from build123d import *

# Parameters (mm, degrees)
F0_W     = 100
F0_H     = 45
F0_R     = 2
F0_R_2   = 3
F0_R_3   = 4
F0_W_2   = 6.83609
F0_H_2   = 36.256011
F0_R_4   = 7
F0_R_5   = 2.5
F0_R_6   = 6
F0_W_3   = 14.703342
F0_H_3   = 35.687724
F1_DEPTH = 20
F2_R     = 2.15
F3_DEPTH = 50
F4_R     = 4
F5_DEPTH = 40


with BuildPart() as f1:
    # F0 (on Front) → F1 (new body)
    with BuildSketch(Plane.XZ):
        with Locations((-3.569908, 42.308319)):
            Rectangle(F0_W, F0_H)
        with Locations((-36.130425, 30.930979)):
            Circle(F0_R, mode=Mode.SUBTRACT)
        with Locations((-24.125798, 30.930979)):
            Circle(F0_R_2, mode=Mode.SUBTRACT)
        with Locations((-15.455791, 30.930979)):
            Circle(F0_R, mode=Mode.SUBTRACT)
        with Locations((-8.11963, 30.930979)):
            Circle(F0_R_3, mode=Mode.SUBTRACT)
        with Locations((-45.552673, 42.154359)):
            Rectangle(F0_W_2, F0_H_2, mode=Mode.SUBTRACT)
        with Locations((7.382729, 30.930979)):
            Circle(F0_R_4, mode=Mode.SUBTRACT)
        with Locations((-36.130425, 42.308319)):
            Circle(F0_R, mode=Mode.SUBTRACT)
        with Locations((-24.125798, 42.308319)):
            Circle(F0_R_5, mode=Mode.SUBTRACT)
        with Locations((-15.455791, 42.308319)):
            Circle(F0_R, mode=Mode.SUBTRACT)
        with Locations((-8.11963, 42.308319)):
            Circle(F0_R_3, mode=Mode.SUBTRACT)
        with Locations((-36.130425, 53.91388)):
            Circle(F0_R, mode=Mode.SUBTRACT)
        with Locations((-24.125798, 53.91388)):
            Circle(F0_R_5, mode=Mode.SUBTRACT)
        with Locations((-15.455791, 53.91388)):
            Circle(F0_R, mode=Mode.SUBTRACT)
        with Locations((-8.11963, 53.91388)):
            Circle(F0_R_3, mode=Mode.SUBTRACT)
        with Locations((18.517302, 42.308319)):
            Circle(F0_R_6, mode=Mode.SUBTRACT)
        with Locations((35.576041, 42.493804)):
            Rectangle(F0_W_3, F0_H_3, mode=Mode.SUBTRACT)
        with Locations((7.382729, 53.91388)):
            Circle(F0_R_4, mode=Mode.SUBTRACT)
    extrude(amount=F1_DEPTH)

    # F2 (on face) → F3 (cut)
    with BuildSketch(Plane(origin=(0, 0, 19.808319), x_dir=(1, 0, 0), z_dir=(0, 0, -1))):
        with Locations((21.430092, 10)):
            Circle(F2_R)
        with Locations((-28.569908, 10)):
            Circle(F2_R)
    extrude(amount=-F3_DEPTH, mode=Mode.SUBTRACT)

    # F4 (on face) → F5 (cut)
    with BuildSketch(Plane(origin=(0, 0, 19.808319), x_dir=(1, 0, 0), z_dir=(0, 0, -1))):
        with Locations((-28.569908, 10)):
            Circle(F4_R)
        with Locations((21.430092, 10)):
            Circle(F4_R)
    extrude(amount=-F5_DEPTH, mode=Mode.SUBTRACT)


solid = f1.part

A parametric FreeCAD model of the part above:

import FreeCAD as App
import Part
import Sketcher
from FreeCAD import Vector
Q = App.Units.Quantity

doc = App.newDocument("Part")
params = doc.addObject("Spreadsheet::Sheet", "Params")
for row, (alias, value) in enumerate([
    ("sketch1_diameter", "4 mm"),
    ("sketch1_diameter2", "6 mm"),
    ("sketch1_diameter3", "8 mm"),
    ("sketch1_diameter4", "5 mm"),
    ("sketch1_diameter5", "14 mm"),
    ("pad1_length", "20 mm"),
    ("sketch2_diameter", "4.3 mm"),
    ("pocket1_length", "50 mm"),
    ("sketch3_diameter", "8 mm"),
    ("pocket2_length", "40 mm"),
], start=1):
    params.set(f"A{row}", alias)
    params.set(f"B{row}", "=" + value)
    params.setAlias(f"B{row}", alias)

body = doc.addObject("PartDesign::Body", "Body")

# Sketch on XZ plane
sketch1 = body.newObject("Sketcher::SketchObject", "Sketch")
sketch1.AttachmentSupport = (doc.getObject("XZ_Plane"), [""])
sketch1.MapMode = "FlatFace"
sketch1.addGeometry([
    Part.LineSegment(Vector(-53.6, 64.8, 0), Vector(-53.6, 19.8, 0)),  # 0
    Part.LineSegment(Vector(-53.6, 19.8, 0), Vector(46.4, 19.8, 0)),  # 1
    Part.LineSegment(Vector(46.4, 19.8, 0), Vector(46.4, 64.8, 0)),  # 2
    Part.LineSegment(Vector(46.4, 64.8, 0), Vector(-53.6, 64.8, 0)),  # 3
    Part.Circle(Vector(-36.1, 30.9, 0), Vector(0, 0, 1), 2),  # 4
    Part.Circle(Vector(-24.1, 30.9, 0), Vector(0, 0, 1), 3),  # 5
    Part.Circle(Vector(-15.5, 30.9, 0), Vector(0, 0, 1), 2),  # 6
    Part.Circle(Vector(-8.1, 30.9, 0), Vector(0, 0, 1), 4),  # 7
    Part.LineSegment(Vector(-42.1, 24, 0), Vector(-49, 24, 0)),  # 8
    Part.LineSegment(Vector(-49, 24, 0), Vector(-49, 60.3, 0)),  # 9
    Part.LineSegment(Vector(-49, 60.3, 0), Vector(-42.1, 60.3, 0)),  # 10
    Part.LineSegment(Vector(-42.1, 60.3, 0), Vector(-42.1, 24, 0)),  # 11
    Part.Circle(Vector(-36.1, 42.3, 0), Vector(0, 0, 1), 2),  # 12
    Part.Circle(Vector(-24.1, 42.3, 0), Vector(0, 0, 1), 2.5),  # 13
    Part.Circle(Vector(-15.5, 42.3, 0), Vector(0, 0, 1), 2),  # 14
    Part.Circle(Vector(-8.1, 42.3, 0), Vector(0, 0, 1), 4),  # 15
    Part.Circle(Vector(7.4, 30.9, 0), Vector(0, 0, 1), 7),  # 16
    Part.Circle(Vector(18.5, 42.3, 0), Vector(0, 0, 1), 6),  # 17
    Part.Circle(Vector(-36.1, 53.9, 0), Vector(0, 0, 1), 2),  # 18
    Part.Circle(Vector(-24.1, 53.9, 0), Vector(0, 0, 1), 2.5),  # 19
    Part.Circle(Vector(-15.5, 53.9, 0), Vector(0, 0, 1), 2),  # 20
    Part.Circle(Vector(-8.1, 53.9, 0), Vector(0, 0, 1), 4),  # 21
    Part.LineSegment(Vector(42.9, 24.6, 0), Vector(28.2, 24.6, 0)),  # 22
    Part.LineSegment(Vector(28.2, 24.6, 0), Vector(28.2, 60.3, 0)),  # 23
    Part.LineSegment(Vector(28.2, 60.3, 0), Vector(42.9, 60.3, 0)),  # 24
    Part.LineSegment(Vector(42.9, 60.3, 0), Vector(42.9, 24.6, 0)),  # 25
    Part.Circle(Vector(7.4, 53.9, 0), Vector(0, 0, 1), 7),  # 26
], False)
sketch1.addConstraint([
    Sketcher.Constraint("Coincident", 0, 2, 1, 1),
    Sketcher.Constraint("Coincident", 1, 2, 2, 1),
    Sketcher.Constraint("Coincident", 2, 2, 3, 1),
    Sketcher.Constraint("Coincident", 3, 2, 0, 1),
    Sketcher.Constraint("Coincident", 8, 2, 9, 1),
    Sketcher.Constraint("Coincident", 9, 2, 10, 1),
    Sketcher.Constraint("Coincident", 10, 2, 11, 1),
    Sketcher.Constraint("Coincident", 11, 2, 8, 1),
    Sketcher.Constraint("Coincident", 22, 2, 23, 1),
    Sketcher.Constraint("Coincident", 23, 2, 24, 1),
    Sketcher.Constraint("Coincident", 24, 2, 25, 1),
    Sketcher.Constraint("Coincident", 25, 2, 22, 1),
    Sketcher.Constraint("Vertical", 0),
    Sketcher.Constraint("Horizontal", 1),
    Sketcher.Constraint("Vertical", 2),
    Sketcher.Constraint("Horizontal", 3),
    Sketcher.Constraint("Horizontal", 8),
    Sketcher.Constraint("Vertical", 9),
    Sketcher.Constraint("Horizontal", 10),
    Sketcher.Constraint("Vertical", 11),
    Sketcher.Constraint("Horizontal", 22),
    Sketcher.Constraint("Vertical", 23),
    Sketcher.Constraint("Horizontal", 24),
    Sketcher.Constraint("Vertical", 25),
    Sketcher.Constraint("Equal", 4, 6),
    Sketcher.Constraint("Equal", 6, 12),
    Sketcher.Constraint("Equal", 12, 14),
    Sketcher.Constraint("Equal", 7, 15),
    Sketcher.Constraint("Equal", 14, 18),
    Sketcher.Constraint("Equal", 13, 19),
    Sketcher.Constraint("Equal", 18, 20),
    Sketcher.Constraint("Equal", 15, 21),
    Sketcher.Constraint("Equal", 16, 26),
    Sketcher.Constraint("Horizontal", 4, 3, 5, 3),
    Sketcher.Constraint("Horizontal", 5, 3, 6, 3),
    Sketcher.Constraint("Horizontal", 6, 3, 7, 3),
    Sketcher.Constraint("Horizontal", 12, 3, 13, 3),
    Sketcher.Constraint("Horizontal", 13, 3, 14, 3),
    Sketcher.Constraint("Horizontal", 14, 3, 15, 3),
    Sketcher.Constraint("Horizontal", 7, 3, 16, 3),
    Sketcher.Constraint("Horizontal", 15, 3, 17, 3),
    Sketcher.Constraint("Horizontal", 18, 3, 19, 3),
    Sketcher.Constraint("Horizontal", 19, 3, 20, 3),
    Sketcher.Constraint("Horizontal", 20, 3, 21, 3),
    Sketcher.Constraint("Horizontal", 21, 3, 26, 3),
    Sketcher.Constraint("Vertical", 4, 3, 12, 3),
    Sketcher.Constraint("Vertical", 5, 3, 13, 3),
    Sketcher.Constraint("Vertical", 6, 3, 14, 3),
    Sketcher.Constraint("Vertical", 7, 3, 15, 3),
    Sketcher.Constraint("Vertical", 12, 3, 18, 3),
    Sketcher.Constraint("Vertical", 13, 3, 19, 3),
    Sketcher.Constraint("Vertical", 14, 3, 20, 3),
    Sketcher.Constraint("Vertical", 15, 3, 21, 3),
    Sketcher.Constraint("Vertical", 16, 3, 26, 3),
    Sketcher.Constraint("Diameter", 4, Q("4 mm")),
    Sketcher.Constraint("Diameter", 5, Q("6 mm")),
    Sketcher.Constraint("Diameter", 7, Q("8 mm")),
    Sketcher.Constraint("Diameter", 13, Q("5 mm")),
    Sketcher.Constraint("Diameter", 16, Q("14 mm")),
    Sketcher.Constraint("Diameter", 17, Q("12 mm")),
    Sketcher.Constraint("DistanceX", 1, 1, 1, 2, Q("100 mm")),
    Sketcher.Constraint("DistanceY", 0, 2, 0, 1, Q("45 mm")),
    Sketcher.Constraint("DistanceY", 0, 2, 12, 3, Q("22.5 mm")),
    Sketcher.Constraint("DistanceX", 7, 3, 22, 2, Q("36.344 mm")),
    Sketcher.Constraint("DistanceX", 8, 2, 8, 1, Q("6.83609 mm")),
    Sketcher.Constraint("DistanceX", 22, 2, 22, 1, Q("14.703342 mm")),
    Sketcher.Constraint("DistanceY", 9, 1, 9, 2, Q("36.256011 mm")),
    Sketcher.Constraint("DistanceY", 4, 3, 18, 3, Q("22.982901 mm")),
    Sketcher.Constraint("DistanceY", 23, 1, 23, 2, Q("35.687724 mm")),
    Sketcher.Constraint("DistanceY", -1, 1, 4, 3, Q("30.930979 mm")),
    Sketcher.Constraint("DistanceX", 6, 3, -1, 1, Q("15.455791 mm")),
    Sketcher.Constraint("DistanceX", 7, 3, -1, 1, Q("8.11963 mm")),
    Sketcher.Constraint("DistanceY", -1, 1, 12, 3, Q("42.308319 mm")),
    Sketcher.Constraint("DistanceX", -1, 1, 16, 3, Q("7.382729 mm")),
    Sketcher.Constraint("DistanceY", -1, 1, 22, 2, Q("24.649942 mm")),
    Sketcher.Constraint("DistanceX", 0, 2, 5, 3, Q("29.44411 mm")),
    Sketcher.Constraint("DistanceX", 17, 3, 1, 2, Q("27.91279 mm")),
    Sketcher.Constraint("DistanceX", 0, 2, 8, 2, Q("4.59919 mm")),
    Sketcher.Constraint("DistanceX", 24, 2, 2, 2, Q("3.50238 mm")),
    Sketcher.Constraint("DistanceX", 4, 3, -1, 1, Q("36.130425 mm")),
    Sketcher.Constraint("DistanceY", -1, 1, 8, 2, Q("24.026353 mm")),
])
sketch1.setExpression("Constraints[54]", "Params.sketch1_diameter")
sketch1.setExpression("Constraints[55]", "Params.sketch1_diameter2")
sketch1.setExpression("Constraints[56]", "Params.sketch1_diameter3")
sketch1.setExpression("Constraints[57]", "Params.sketch1_diameter4")
sketch1.setExpression("Constraints[58]", "Params.sketch1_diameter5")
pad1 = body.newObject("PartDesign::Pad", "Pad")
pad1.Profile = sketch1
pad1.setExpression("Length", "Params.pad1_length")

# Sketch on XY plane
sketch2 = body.newObject("Sketcher::SketchObject", "Sketch001")
sketch2.AttachmentSupport = (doc.getObject("XY_Plane"), [""])
sketch2.MapMode = "FlatFace"
sketch2.AttachmentOffset = App.Placement(Vector(0, 0, 19.808319), App.Rotation())
sketch2.addGeometry([
    Part.Circle(Vector(21.4, -10, 0), Vector(0, 0, 1), 2.1),
    Part.Circle(Vector(-28.6, -10, 0), Vector(0, 0, 1), 2.1),
], False)
sketch2.addConstraint([
    Sketcher.Constraint("Equal", 0, 1),
    Sketcher.Constraint("Horizontal", 0, 3, 1, 3),
    Sketcher.Constraint("Diameter", 0, Q("4.3 mm")),
    Sketcher.Constraint("DistanceY", 0, 3, -1, 1, Q("10 mm")),
    Sketcher.Constraint("DistanceX", 1, 3, 0, 3, Q("50 mm")),
    Sketcher.Constraint("DistanceX", -1, 1, 0, 3, Q("21.430092 mm")),
])
sketch2.setExpression("Constraints[2]", "Params.sketch2_diameter")
pocket1 = body.newObject("PartDesign::Pocket", "Pocket")
pocket1.Profile = sketch2
pocket1.setExpression("Length", "Params.pocket1_length")
pocket1.Reversed = True

# Sketch on XY plane
sketch3 = body.newObject("Sketcher::SketchObject", "Sketch002")
sketch3.AttachmentSupport = (doc.getObject("XY_Plane"), [""])
sketch3.MapMode = "FlatFace"
sketch3.AttachmentOffset = App.Placement(Vector(0, 0, 19.808319), App.Rotation())
sketch3.addGeometry([
    Part.Circle(Vector(-28.6, -10, 0), Vector(0, 0, 1), 4),
    Part.Circle(Vector(21.4, -10, 0), Vector(0, 0, 1), 4),
], False)
sketch3.addConstraint([
    Sketcher.Constraint("Equal", 0, 1),
    Sketcher.Constraint("Horizontal", 0, 3, 1, 3),
    Sketcher.Constraint("Diameter", 0, Q("8 mm")),
    Sketcher.Constraint("DistanceY", 0, 3, -1, 1, Q("10 mm")),
    Sketcher.Constraint("DistanceX", 0, 3, 1, 3, Q("50 mm")),
    Sketcher.Constraint("DistanceX", 0, 3, -1, 1, Q("28.569908 mm")),
])
sketch3.setExpression("Constraints[2]", "Params.sketch3_diameter")
pocket2 = body.newObject("PartDesign::Pocket", "Pocket001")
pocket2.Profile = sketch3
pocket2.setExpression("Length", "Params.pocket2_length")
pocket2.Reversed = True

doc.recompute()
